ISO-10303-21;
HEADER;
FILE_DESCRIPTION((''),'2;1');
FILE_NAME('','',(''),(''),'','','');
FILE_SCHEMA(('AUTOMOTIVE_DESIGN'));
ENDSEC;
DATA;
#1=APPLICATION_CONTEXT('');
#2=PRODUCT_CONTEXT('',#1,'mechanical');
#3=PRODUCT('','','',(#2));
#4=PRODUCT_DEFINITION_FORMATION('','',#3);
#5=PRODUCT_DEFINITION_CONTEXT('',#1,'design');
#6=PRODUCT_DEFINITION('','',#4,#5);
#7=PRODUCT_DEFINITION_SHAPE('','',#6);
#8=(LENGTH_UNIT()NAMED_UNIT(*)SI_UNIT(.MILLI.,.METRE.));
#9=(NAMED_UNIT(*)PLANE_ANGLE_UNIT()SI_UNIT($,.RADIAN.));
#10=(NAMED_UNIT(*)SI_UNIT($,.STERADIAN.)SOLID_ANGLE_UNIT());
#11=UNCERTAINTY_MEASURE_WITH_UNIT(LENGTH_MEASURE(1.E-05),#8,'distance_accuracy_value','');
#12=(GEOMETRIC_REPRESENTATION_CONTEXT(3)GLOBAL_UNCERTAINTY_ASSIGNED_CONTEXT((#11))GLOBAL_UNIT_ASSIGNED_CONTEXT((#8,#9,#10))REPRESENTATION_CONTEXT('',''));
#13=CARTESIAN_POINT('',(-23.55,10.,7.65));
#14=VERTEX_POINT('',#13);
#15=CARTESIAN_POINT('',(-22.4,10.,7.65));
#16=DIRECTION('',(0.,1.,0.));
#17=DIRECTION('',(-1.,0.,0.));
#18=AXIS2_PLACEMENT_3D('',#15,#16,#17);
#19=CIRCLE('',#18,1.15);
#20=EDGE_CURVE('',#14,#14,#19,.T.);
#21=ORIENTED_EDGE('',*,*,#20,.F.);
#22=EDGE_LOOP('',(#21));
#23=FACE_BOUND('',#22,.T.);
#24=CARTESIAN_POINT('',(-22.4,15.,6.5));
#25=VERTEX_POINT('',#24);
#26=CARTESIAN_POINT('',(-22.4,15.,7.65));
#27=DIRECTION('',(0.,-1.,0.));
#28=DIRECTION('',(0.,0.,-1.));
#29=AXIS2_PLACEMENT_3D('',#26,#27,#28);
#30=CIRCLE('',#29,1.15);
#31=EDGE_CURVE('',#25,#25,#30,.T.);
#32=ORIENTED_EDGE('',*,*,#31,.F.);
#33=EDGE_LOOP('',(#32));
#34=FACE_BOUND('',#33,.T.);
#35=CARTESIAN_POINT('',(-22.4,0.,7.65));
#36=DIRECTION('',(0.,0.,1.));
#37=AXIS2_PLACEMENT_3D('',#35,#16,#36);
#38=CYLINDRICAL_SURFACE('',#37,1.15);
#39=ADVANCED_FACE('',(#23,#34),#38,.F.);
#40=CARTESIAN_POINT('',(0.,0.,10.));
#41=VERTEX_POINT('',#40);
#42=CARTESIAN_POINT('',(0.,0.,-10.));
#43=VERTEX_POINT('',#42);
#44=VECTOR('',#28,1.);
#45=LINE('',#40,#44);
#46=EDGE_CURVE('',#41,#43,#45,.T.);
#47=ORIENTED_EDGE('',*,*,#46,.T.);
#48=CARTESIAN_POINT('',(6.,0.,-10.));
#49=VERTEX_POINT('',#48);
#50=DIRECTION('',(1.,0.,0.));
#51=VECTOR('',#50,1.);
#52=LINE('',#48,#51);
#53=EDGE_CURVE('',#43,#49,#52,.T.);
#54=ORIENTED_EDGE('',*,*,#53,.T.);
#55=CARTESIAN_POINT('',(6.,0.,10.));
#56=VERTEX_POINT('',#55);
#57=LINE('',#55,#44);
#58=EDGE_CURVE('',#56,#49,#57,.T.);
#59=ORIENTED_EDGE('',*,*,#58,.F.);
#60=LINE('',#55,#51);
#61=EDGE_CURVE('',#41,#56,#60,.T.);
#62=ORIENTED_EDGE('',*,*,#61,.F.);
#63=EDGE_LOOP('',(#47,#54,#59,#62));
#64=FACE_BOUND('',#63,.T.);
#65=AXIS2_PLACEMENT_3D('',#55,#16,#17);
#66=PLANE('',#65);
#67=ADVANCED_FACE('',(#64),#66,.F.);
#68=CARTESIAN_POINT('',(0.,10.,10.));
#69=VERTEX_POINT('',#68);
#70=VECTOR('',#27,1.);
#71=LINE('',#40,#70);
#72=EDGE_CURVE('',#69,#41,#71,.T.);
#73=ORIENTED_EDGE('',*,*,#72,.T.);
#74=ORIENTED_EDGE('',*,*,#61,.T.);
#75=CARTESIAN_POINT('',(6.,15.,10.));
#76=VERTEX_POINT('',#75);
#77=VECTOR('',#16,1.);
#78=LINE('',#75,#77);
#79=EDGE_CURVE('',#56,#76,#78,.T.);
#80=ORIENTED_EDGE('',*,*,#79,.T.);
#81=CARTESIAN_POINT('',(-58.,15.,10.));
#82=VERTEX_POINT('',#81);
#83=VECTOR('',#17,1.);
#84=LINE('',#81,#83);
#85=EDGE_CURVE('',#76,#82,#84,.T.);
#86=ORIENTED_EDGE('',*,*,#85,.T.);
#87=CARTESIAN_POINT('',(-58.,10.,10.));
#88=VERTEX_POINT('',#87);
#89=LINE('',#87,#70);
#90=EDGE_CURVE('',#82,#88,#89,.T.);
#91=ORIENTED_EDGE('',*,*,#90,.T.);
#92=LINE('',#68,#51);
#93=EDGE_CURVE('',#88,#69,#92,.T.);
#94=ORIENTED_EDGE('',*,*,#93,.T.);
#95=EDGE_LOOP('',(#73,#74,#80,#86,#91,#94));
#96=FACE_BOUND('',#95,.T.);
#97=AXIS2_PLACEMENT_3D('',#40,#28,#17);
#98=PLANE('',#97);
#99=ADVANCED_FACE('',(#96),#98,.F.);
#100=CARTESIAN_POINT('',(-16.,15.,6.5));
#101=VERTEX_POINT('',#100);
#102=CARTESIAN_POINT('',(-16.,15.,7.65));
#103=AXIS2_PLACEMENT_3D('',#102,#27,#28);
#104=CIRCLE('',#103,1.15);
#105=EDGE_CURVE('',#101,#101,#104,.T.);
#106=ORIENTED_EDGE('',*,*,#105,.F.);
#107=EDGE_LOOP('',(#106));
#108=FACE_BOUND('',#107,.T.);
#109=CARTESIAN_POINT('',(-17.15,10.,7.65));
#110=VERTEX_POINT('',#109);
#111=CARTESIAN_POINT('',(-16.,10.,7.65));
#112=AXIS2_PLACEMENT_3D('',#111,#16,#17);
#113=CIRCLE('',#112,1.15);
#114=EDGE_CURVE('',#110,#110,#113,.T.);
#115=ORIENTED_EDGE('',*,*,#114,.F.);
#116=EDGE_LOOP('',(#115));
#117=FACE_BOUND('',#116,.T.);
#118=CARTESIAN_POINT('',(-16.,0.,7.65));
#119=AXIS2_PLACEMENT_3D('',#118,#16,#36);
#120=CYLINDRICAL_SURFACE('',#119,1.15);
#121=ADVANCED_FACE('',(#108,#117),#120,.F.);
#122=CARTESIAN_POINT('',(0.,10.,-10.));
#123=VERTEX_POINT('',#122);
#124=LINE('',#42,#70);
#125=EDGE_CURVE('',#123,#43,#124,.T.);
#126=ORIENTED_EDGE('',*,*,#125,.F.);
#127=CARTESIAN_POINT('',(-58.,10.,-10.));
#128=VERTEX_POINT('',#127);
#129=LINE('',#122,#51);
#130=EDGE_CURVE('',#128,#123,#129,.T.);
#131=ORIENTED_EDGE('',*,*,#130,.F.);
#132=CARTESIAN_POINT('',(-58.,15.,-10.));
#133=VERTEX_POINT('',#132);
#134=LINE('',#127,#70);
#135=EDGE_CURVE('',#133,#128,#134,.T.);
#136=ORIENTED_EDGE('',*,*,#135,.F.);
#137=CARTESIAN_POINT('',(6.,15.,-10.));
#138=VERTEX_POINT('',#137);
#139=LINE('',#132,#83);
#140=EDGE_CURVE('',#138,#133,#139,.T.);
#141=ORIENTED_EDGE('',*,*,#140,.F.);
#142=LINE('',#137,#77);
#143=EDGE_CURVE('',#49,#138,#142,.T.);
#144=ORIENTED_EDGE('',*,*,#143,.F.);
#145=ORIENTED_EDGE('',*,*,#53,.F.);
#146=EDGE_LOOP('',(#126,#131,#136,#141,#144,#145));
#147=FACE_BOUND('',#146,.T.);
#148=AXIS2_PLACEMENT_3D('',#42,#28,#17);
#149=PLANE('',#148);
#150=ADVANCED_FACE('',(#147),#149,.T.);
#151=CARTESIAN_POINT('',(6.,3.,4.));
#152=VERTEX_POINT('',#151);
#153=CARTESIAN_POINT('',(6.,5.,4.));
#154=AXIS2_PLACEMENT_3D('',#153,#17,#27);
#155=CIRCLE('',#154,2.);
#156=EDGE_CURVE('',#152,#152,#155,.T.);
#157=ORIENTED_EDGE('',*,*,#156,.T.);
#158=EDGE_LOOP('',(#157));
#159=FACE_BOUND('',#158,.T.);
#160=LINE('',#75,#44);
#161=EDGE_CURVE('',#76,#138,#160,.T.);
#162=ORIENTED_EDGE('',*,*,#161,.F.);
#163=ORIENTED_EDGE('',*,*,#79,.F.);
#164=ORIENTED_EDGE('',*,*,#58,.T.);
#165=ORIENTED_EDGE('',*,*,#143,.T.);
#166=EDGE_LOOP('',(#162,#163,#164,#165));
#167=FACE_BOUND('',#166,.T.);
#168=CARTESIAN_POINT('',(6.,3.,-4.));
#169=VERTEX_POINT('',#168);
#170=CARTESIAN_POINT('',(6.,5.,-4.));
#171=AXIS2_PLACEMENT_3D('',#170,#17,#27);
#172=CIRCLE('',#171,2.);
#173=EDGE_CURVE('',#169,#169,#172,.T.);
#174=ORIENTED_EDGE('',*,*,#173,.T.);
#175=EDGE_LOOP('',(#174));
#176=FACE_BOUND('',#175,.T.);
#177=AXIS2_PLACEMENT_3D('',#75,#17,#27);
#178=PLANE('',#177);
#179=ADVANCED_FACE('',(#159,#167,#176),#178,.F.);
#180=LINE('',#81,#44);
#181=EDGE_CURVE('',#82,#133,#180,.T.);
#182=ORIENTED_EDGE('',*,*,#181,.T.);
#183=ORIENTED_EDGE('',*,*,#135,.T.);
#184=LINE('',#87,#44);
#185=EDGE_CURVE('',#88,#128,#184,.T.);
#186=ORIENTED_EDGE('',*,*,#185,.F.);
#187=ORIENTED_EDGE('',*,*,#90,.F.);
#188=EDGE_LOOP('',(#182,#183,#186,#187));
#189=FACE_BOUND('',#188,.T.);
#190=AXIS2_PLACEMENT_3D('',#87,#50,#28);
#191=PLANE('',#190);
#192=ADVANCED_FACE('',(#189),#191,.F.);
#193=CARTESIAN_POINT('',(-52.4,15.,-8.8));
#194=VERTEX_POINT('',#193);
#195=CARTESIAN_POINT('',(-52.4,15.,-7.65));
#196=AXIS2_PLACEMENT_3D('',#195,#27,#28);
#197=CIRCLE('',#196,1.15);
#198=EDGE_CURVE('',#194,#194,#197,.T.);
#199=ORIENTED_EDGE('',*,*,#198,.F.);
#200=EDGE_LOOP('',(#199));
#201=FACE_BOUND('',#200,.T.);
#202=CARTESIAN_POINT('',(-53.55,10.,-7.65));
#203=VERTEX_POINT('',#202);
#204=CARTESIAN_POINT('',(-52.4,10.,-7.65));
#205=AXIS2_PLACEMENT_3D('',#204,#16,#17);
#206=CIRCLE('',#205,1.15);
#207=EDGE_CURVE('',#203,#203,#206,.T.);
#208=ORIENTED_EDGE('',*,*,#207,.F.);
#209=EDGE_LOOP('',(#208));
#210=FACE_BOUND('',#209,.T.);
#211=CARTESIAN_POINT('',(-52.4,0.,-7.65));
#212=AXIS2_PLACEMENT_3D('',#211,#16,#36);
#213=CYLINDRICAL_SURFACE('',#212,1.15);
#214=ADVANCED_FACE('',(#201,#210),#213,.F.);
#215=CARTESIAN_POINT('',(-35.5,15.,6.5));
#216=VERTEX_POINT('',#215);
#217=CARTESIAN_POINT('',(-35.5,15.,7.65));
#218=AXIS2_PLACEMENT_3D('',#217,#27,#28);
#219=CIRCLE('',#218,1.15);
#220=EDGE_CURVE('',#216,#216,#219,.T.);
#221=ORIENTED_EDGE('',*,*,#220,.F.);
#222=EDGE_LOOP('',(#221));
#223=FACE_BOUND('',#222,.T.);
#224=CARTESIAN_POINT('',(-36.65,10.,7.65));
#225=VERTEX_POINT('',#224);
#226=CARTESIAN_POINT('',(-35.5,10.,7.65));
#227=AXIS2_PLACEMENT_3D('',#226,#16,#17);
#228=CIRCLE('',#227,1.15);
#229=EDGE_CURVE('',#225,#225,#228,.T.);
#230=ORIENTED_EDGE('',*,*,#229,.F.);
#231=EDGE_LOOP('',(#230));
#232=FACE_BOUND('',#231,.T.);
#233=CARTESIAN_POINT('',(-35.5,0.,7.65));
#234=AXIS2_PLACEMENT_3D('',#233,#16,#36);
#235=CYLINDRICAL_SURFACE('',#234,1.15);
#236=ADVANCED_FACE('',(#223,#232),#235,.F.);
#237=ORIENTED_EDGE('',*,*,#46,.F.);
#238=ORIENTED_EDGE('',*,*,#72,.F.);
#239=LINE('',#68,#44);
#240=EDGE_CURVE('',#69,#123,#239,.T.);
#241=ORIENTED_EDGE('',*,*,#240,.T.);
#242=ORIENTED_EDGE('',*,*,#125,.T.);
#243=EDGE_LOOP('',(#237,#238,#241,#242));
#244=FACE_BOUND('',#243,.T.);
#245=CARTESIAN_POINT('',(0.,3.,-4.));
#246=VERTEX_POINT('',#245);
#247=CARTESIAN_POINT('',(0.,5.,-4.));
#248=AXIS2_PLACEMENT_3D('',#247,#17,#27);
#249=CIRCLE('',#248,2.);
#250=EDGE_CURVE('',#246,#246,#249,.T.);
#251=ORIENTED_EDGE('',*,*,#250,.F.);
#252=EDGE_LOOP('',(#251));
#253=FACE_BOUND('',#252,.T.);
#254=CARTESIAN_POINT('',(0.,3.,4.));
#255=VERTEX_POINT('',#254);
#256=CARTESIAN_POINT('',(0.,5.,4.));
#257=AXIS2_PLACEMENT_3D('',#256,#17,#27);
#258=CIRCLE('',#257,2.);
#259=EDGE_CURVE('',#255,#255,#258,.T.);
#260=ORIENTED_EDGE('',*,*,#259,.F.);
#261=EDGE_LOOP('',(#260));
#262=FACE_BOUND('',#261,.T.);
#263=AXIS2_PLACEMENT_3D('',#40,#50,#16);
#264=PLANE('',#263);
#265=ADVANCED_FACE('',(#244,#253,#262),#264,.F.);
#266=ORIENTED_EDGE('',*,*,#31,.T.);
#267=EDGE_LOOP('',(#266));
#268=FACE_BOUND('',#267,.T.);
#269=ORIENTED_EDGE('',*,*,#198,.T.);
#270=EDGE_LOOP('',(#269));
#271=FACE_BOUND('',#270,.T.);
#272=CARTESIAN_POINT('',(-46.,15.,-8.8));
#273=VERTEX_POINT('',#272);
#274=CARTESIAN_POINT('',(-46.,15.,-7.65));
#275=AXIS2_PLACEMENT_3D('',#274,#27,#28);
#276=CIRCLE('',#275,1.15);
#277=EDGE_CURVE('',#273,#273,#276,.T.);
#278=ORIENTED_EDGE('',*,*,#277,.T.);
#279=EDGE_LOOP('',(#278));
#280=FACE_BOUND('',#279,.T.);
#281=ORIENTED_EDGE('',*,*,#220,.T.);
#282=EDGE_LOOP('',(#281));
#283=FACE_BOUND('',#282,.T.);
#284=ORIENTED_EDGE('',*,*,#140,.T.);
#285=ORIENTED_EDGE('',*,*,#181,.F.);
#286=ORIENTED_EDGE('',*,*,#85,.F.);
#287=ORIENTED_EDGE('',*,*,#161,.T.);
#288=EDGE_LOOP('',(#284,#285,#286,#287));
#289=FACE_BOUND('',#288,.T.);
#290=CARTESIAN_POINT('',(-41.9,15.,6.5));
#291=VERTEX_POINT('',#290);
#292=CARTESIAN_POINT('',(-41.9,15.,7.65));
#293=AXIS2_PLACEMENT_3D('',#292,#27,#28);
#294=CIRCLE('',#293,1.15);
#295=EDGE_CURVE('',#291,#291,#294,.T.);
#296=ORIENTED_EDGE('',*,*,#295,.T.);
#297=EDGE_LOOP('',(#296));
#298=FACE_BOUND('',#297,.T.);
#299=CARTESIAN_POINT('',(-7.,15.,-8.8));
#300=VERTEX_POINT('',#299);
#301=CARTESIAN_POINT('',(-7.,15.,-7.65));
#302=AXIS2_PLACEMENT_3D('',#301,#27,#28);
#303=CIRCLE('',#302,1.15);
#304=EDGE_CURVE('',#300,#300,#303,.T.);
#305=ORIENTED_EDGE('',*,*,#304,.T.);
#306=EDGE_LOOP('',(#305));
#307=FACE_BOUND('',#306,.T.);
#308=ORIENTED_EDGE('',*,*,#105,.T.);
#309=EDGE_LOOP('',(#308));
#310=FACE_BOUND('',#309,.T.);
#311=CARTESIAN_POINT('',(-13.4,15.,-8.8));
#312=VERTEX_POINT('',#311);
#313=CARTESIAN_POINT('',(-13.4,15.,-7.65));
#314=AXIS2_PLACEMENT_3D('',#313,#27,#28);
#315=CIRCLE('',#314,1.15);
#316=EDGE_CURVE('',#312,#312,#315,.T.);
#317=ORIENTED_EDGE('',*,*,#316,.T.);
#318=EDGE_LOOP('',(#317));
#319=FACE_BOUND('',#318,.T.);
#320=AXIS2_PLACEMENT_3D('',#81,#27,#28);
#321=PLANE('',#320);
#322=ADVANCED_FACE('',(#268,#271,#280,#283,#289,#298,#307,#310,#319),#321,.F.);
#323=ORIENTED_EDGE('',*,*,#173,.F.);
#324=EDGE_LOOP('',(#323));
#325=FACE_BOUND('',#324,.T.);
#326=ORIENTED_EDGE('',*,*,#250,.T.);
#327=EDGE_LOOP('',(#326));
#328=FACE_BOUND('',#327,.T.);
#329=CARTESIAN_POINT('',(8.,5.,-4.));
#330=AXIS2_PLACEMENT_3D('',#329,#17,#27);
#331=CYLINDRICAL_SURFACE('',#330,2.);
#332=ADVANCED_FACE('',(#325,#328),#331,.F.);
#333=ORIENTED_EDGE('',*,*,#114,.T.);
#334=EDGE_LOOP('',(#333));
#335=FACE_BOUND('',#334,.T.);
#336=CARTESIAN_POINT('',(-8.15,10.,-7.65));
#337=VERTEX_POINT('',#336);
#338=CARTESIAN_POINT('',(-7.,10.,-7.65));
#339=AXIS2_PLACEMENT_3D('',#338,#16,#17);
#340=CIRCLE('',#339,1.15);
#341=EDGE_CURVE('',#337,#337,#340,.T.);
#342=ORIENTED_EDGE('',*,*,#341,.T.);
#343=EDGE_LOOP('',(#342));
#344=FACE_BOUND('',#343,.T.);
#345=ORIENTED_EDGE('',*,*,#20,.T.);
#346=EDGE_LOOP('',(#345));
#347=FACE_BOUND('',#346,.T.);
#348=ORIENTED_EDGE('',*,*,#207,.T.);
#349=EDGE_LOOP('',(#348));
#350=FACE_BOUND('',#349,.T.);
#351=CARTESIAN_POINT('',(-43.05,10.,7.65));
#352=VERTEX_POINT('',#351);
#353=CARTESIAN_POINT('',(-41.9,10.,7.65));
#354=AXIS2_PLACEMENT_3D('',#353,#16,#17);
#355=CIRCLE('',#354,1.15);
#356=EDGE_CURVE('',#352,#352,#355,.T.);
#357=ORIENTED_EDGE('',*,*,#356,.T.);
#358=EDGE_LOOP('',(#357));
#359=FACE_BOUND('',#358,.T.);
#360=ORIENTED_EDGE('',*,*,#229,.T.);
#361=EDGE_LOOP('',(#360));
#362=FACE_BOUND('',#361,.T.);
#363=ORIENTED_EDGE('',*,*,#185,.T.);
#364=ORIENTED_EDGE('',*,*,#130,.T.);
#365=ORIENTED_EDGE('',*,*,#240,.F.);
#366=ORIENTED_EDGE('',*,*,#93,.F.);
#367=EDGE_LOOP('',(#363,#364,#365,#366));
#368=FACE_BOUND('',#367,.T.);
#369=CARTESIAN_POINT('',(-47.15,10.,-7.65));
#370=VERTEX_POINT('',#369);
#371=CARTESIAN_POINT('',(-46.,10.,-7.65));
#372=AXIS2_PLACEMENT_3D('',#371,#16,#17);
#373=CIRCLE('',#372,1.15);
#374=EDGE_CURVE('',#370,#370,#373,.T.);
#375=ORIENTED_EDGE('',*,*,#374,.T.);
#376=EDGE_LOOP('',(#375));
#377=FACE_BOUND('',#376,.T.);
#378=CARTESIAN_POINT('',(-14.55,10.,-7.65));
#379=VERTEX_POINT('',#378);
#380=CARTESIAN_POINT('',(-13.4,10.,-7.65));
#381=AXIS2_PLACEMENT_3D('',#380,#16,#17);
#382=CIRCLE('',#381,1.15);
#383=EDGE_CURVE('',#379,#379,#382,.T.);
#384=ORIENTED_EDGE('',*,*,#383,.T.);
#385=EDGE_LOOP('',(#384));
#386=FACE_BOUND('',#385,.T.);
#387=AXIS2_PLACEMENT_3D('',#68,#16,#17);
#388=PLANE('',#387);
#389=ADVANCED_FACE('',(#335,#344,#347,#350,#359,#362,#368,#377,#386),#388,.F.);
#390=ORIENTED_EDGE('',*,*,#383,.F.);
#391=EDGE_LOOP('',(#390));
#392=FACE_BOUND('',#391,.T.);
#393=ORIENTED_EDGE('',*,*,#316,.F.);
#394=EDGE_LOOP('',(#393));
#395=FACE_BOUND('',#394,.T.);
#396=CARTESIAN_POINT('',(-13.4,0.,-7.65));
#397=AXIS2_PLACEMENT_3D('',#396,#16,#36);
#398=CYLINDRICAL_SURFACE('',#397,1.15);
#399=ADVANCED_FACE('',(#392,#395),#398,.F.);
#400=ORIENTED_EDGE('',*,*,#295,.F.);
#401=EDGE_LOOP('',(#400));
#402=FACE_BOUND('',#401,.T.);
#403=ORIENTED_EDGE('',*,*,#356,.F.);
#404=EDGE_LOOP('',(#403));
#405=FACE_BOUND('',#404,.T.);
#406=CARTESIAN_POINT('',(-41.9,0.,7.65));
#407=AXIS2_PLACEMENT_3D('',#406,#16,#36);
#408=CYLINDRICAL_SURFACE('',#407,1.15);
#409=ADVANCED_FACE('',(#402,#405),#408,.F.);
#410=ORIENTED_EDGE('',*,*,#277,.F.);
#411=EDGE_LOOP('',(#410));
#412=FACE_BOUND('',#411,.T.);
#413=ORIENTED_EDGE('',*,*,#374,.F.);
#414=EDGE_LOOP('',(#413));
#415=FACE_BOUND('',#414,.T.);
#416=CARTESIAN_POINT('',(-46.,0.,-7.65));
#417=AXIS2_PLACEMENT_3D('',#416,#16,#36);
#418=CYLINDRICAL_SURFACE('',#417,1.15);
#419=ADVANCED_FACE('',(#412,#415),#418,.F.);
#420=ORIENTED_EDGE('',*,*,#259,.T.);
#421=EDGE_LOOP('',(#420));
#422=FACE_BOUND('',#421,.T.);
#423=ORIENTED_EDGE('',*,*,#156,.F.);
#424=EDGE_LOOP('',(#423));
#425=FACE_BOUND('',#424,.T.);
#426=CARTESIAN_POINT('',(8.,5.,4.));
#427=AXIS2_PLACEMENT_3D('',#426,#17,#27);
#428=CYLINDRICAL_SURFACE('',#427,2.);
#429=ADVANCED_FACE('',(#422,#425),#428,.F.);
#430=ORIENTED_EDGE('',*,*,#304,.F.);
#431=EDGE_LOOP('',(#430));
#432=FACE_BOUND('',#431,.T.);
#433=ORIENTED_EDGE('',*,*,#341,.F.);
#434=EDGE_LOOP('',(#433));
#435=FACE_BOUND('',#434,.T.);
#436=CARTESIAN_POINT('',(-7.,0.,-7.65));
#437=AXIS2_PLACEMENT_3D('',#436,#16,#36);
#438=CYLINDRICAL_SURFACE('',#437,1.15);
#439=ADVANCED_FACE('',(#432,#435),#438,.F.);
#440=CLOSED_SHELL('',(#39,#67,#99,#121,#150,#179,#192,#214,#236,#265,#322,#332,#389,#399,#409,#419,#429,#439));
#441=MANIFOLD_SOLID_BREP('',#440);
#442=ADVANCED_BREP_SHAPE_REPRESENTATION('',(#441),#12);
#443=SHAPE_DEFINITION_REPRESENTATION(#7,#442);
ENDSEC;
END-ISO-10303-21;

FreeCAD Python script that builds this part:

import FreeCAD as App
import Part
import Sketcher
Q = App.Units.Quantity


def add_polygon(sketch, points):
    """Adds a closed chain of lines whose ends are joined by coincident constraints."""
    first, n = sketch.GeometryCount, len(points)
    for a, b in zip(points, points[1:] + points[:1]):
        sketch.addGeometry(Part.LineSegment(App.Vector(*a, 0), App.Vector(*b, 0)), False)
    for i in range(n):
        sketch.addConstraint(Sketcher.Constraint("Coincident", first + i, 2, first + (i + 1) % n, 1))

doc = App.newDocument("Part")
params = doc.addObject("Spreadsheet::Sheet", "Params")
for row, (alias, value) in enumerate([
    ("sketch1_width", "6 mm"),
    ("sketch1_width2", "64 mm"),
    ("sketch1_height", "10 mm"),
    ("sketch1_height2", "15 mm"),
    ("pad1_length", "20 mm"),
    ("sketch2_diameter", "4 mm"),
    ("pocket1_length", "8 mm"),
    ("sketch3_diameter", "2.3 mm"),
], start=1):
    params.set(f"A{row}", alias)
    params.set(f"B{row}", "=" + value)
    params.setAlias(f"B{row}", alias)

body = doc.addObject("PartDesign::Body", "Body")

# Sketch on XY plane
sketch1 = body.newObject("Sketcher::SketchObject", "Sketch")
sketch1.AttachmentSupport = (doc.getObject("XY_Plane"), [""])
sketch1.MapMode = "FlatFace"
add_polygon(sketch1, [(0, 10), (0, 0), (6, 0), (6, 15), (-58, 15), (-58, 10)])  # lines 0-5
sketch1.addConstraint(Sketcher.Constraint("Vertical", 0))
sketch1.addConstraint(Sketcher.Constraint("Horizontal", 1))
sketch1.addConstraint(Sketcher.Constraint("Vertical", 2))
sketch1.addConstraint(Sketcher.Constraint("Horizontal", 3))
sketch1.addConstraint(Sketcher.Constraint("Vertical", 4))
sketch1.addConstraint(Sketcher.Constraint("Horizontal", 5))
sketch1.addConstraint(Sketcher.Constraint("Coincident", 0, 2, -1, 1))
sketch1.addConstraint(Sketcher.Constraint("DistanceX", 1, 1, 1, 2, Q("6 mm")))
sketch1.addConstraint(Sketcher.Constraint("DistanceX", 3, 2, 3, 1, Q("64 mm")))
sketch1.addConstraint(Sketcher.Constraint("DistanceY", 0, 2, 0, 1, Q("10 mm")))
sketch1.addConstraint(Sketcher.Constraint("DistanceY", 2, 1, 2, 2, Q("15 mm")))
sketch1.setExpression("Constraints[13]", "Params.sketch1_width")
sketch1.setExpression("Constraints[14]", "Params.sketch1_width2")
sketch1.setExpression("Constraints[15]", "Params.sketch1_height")
sketch1.setExpression("Constraints[16]", "Params.sketch1_height2")
pad1 = body.newObject("PartDesign::Pad", "Pad")
pad1.Profile = sketch1
pad1.setExpression("Length", "Params.pad1_length")
pad1.Midplane = True

# Sketch on YZ plane
sketch2 = body.newObject("Sketcher::SketchObject", "Sketch001")
sketch2.AttachmentSupport = (doc.getObject("YZ_Plane"), [""])
sketch2.MapMode = "FlatFace"
sketch2.addGeometry(Part.Circle(App.Vector(5, -4, 0), App.Vector(0, 0, 1), 2), False)
sketch2.addGeometry(Part.Circle(App.Vector(5, 4, 0), App.Vector(0, 0, 1), 2), False)
sketch2.addConstraint(Sketcher.Constraint("Equal", 0, 1))
sketch2.addConstraint(Sketcher.Constraint("Symmetric", 0, 3, 1, 3, -1))
sketch2.addConstraint(Sketcher.Constraint("Diameter", 0, Q("4 mm")))
sketch2.addConstraint(Sketcher.Constraint("DistanceX", -1, 1, 0, 3, Q("5 mm")))
sketch2.addConstraint(Sketcher.Constraint("DistanceY", 0, 3, -1, 1, Q("4 mm")))
sketch2.setExpression("Constraints[2]", "Params.sketch2_diameter")
pocket1 = body.newObject("PartDesign::Pocket", "Pocket")
pocket1.Profile = sketch2
pocket1.setExpression("Length", "Params.pocket1_length")
pocket1.Reversed = True

# Sketch on XZ plane
sketch3 = body.newObject("Sketcher::SketchObject", "Sketch002")
sketch3.AttachmentSupport = (doc.getObject("XZ_Plane"), [""])
sketch3.MapMode = "FlatFace"
sketch3.AttachmentOffset = App.Placement(App.Vector(0, 0, -15), App.Rotation())
sketch3.addGeometry(Part.Circle(App.Vector(-16, 7.65, 0), App.Vector(0, 0, 1), 1.15), False)
sketch3.addGeometry(Part.Circle(App.Vector(-22.4, 7.65, 0), App.Vector(0, 0, 1), 1.15), False)
sketch3.addGeometry(Part.Circle(App.Vector(-35.5, 7.65, 0), App.Vector(0, 0, 1), 1.15), False)
sketch3.addGeometry(Part.Circle(App.Vector(-41.9, 7.65, 0), App.Vector(0, 0, 1), 1.15), False)
sketch3.addGeometry(Part.Circle(App.Vector(-46, -7.65, 0), App.Vector(0, 0, 1), 1.15), False)
sketch3.addGeometry(Part.Circle(App.Vector(-52.4, -7.65, 0), App.Vector(0, 0, 1), 1.15), False)
sketch3.addGeometry(Part.Circle(App.Vector(-13.4, -7.65, 0), App.Vector(0, 0, 1), 1.15), False)
sketch3.addGeometry(Part.Circle(App.Vector(-7, -7.65, 0), App.Vector(0, 0, 1), 1.15), False)
sketch3.addConstraint(Sketcher.Constraint("Equal", 0, 1))
sketch3.addConstraint(Sketcher.Constraint("Equal", 1, 2))
sketch3.addConstraint(Sketcher.Constraint("Equal", 2, 3))
sketch3.addConstraint(Sketcher.Constraint("Equal", 3, 4))
sketch3.addConstraint(Sketcher.Constraint("Equal", 4, 5))
sketch3.addConstraint(Sketcher.Constraint("Equal", 5, 6))
sketch3.addConstraint(Sketcher.Constraint("Equal", 6, 7))
sketch3.addConstraint(Sketcher.Constraint("Horizontal", 0, 3, 1, 3))
sketch3.addConstraint(Sketcher.Constraint("Horizontal", 1, 3, 2, 3))
sketch3.addConstraint(Sketcher.Constraint("Horizontal", 2, 3, 3, 3))
sketch3.addConstraint(Sketcher.Constraint("Horizontal", 4, 3, 5, 3))
sketch3.addConstraint(Sketcher.Constraint("Horizontal", 5, 3, 6, 3))
sketch3.addConstraint(Sketcher.Constraint("Horizontal", 6, 3, 7, 3))
sketch3.addConstraint(Sketcher.Constraint("Diameter", 0, Q("2.3 mm")))
sketch3.addConstraint(Sketcher.Constraint("DistanceX", 0, 3, -1, 1, Q("16 mm")))
sketch3.addConstraint(Sketcher.Constraint("DistanceX", 4, 3, -1, 1, Q("46 mm")))
sketch3.addConstraint(Sketcher.Constraint("DistanceX", 7, 3, -1, 1, Q("7 mm")))
sketch3.addConstraint(Sketcher.Constraint("DistanceX", 5, 3, 1, 3, Q("30 mm")))
sketch3.addConstraint(Sketcher.Constraint("DistanceX", 1, 3, 6, 3, Q("9 mm")))
sketch3.addConstraint(Sketcher.Constraint("DistanceX", 1, 3, -1, 1, Q("22.4 mm")))
sketch3.addConstraint(Sketcher.Constraint("DistanceX", 2, 3, -1, 1, Q("35.5 mm")))
sketch3.addConstraint(Sketcher.Constraint("DistanceX", 3, 3, -1, 1, Q("41.9 mm")))
sketch3.addConstraint(Sketcher.Constraint("DistanceY", 4, 3, 3, 3, Q("15.3 mm")))
sketch3.addConstraint(Sketcher.Constraint("DistanceY", -1, 1, 0, 3, Q("7.65 mm")))
sketch3.setExpression("Constraints[13]", "Params.sketch3_diameter")
pocket2 = body.newObject("PartDesign::Pocket", "Pocket001")
pocket2.Profile = sketch3
pocket2.Type = "ThroughAll"
pocket2.Midplane = True

doc.recompute()
